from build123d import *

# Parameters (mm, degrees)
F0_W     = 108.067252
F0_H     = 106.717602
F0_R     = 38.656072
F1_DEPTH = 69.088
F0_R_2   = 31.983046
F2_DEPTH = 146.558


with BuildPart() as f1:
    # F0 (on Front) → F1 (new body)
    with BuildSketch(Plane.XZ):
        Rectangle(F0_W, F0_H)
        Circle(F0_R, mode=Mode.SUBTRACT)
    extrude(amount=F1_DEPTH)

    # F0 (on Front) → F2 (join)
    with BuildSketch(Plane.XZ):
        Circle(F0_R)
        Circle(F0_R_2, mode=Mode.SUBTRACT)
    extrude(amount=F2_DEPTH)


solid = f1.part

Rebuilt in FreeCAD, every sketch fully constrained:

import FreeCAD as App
import Part
import Sketcher
from FreeCAD import Vector
Q = App.Units.Quantity

doc = App.newDocument("Part")
body = doc.addObject("PartDesign::Body", "Body")

# Sketch on XZ plane
sketch1 = body.newObject("Sketcher::SketchObject", "Sketch")
sketch1.AttachmentSupport = (doc.getObject("XZ_Plane"), [""])
sketch1.MapMode = "FlatFace"
sketch1.addGeometry(Part.LineSegment(Vector(-54, 53, 0), Vector(-54, -53, 0)), False)
sketch1.addGeometry(Part.LineSegment(Vector(-54, -53, 0), Vector(54, -53, 0)), False)
sketch1.addGeometry(Part.LineSegment(Vector(54, -53, 0), Vector(54, 53, 0)), False)
sketch1.addGeometry(Part.LineSegment(Vector(54, 53, 0), Vector(-54, 53, 0)), False)
sketch1.addGeometry(Part.Circle(Vector(0, 0, 0), Vector(0, 0, 1), 39), False)
sketch1.addConstraint(Sketcher.Constraint("Coincident", 0, 2, 1, 1))
sketch1.addConstraint(Sketcher.Constraint("Coincident", 1, 2, 2, 1))
sketch1.addConstraint(Sketcher.Constraint("Coincident", 2, 2, 3, 1))
sketch1.addConstraint(Sketcher.Constraint("Coincident", 3, 2, 0, 1))
sketch1.addConstraint(Sketcher.Constraint("Vertical", 0))
sketch1.addConstraint(Sketcher.Constraint("Horizontal", 1))
sketch1.addConstraint(Sketcher.Constraint("Vertical", 2))
sketch1.addConstraint(Sketcher.Constraint("Horizontal", 3))
sketch1.addConstraint(Sketcher.Constraint("Coincident", 4, 3, -1, 1))
sketch1.addConstraint(Sketcher.Constraint("Symmetric", 0, 2, 2, 2, -1, 1))
sketch1.addConstraint(Sketcher.Constraint("Diameter", 4, Q("77.312144 mm")))
sketch1.addConstraint(Sketcher.Constraint("DistanceY", 0, 2, 0, 1, Q("106.717602 mm")))
sketch1.addConstraint(Sketcher.Constraint("DistanceX", 1, 1, 1, 2, Q("108.067252 mm")))
pad1 = body.newObject("PartDesign::Pad", "Pad")
pad1.Profile = sketch1
pad1.Length = Q("2.72 in")

# Sketch on XZ plane
sketch2 = body.newObject("Sketcher::SketchObject", "Sketch001")
sketch2.AttachmentSupport = (doc.getObject("XZ_Plane"), [""])
sketch2.MapMode = "FlatFace"
sketch2.addGeometry(Part.Circle(Vector(0, 0, 0), Vector(0, 0, 1), 39), False)
sketch2.addGeometry(Part.Circle(Vector(0, 0, 0), Vector(0, 0, 1), 32), False)
sketch2.addConstraint(Sketcher.Constraint("Coincident", 0, 3, -1, 1))
sketch2.addConstraint(Sketcher.Constraint("Coincident", 1, 3, -1, 1))
sketch2.addConstraint(Sketcher.Constraint("Diameter", 0, Q("77.312144 mm")))
sketch2.addConstraint(Sketcher.Constraint("Diameter", 1, Q("63.966092 mm")))
pad2 = body.newObject("PartDesign::Pad", "Pad001")
pad2.Profile = sketch2
pad2.Length = Q("5.77 in")

doc.recompute()
